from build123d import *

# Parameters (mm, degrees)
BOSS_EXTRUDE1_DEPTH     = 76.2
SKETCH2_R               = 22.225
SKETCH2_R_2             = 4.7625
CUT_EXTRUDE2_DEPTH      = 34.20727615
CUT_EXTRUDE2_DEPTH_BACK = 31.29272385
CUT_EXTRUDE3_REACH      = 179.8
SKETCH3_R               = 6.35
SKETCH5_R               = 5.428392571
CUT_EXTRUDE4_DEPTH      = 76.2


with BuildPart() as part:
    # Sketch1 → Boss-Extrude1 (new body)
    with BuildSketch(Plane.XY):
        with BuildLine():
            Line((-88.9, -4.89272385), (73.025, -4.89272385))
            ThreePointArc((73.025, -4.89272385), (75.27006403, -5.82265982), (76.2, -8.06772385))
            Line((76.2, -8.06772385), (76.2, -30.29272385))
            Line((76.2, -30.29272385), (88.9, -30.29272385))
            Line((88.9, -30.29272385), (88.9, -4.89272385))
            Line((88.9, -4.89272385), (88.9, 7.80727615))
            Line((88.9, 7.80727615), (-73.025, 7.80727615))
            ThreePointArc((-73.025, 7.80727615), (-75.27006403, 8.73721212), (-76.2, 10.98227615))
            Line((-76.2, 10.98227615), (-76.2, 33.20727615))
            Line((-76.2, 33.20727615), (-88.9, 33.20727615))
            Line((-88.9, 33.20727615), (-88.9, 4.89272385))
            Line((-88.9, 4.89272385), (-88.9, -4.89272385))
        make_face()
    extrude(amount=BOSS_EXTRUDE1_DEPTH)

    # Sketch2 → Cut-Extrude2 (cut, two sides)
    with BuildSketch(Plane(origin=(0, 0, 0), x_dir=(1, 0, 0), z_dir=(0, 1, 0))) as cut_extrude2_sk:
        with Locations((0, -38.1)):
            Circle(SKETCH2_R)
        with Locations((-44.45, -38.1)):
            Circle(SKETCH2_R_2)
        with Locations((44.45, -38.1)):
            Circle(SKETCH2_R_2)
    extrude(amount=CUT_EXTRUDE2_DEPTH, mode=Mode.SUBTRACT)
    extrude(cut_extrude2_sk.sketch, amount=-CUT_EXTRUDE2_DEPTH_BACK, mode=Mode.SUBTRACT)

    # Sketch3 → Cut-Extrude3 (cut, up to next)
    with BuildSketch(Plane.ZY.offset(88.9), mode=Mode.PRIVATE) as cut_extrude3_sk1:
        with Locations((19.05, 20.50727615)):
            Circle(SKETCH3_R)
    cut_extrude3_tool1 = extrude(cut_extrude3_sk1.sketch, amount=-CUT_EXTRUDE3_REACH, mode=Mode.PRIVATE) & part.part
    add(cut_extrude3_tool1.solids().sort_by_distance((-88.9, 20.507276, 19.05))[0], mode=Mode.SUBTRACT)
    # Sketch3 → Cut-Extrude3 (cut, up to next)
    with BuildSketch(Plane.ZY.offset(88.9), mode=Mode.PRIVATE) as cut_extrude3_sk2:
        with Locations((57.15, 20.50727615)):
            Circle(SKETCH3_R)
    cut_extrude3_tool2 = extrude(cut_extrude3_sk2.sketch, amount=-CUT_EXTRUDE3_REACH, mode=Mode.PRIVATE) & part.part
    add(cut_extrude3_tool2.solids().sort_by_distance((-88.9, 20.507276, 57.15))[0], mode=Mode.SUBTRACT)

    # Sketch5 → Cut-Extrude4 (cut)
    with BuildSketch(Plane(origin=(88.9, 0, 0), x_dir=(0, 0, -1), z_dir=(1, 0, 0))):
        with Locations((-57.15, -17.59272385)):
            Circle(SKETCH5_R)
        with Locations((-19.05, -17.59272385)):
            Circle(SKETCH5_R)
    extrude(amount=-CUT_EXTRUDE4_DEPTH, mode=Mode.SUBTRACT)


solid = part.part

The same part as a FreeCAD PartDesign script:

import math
import FreeCAD as App
import Part
import Sketcher
from FreeCAD import Vector
Q = App.Units.Quantity

doc = App.newDocument("Part")
params = doc.addObject("Spreadsheet::Sheet", "Params")
for row, (alias, value) in enumerate([
    ("sketch1_width", "0.5 in"),
    ("sketch1_height", "1.5 in"),
    ("sketch1_radius", "0.125 in"),
    ("pad1_length", "3 in"),
    ("sketch2_diameter", "1.75 in"),
    ("sketch2_diameter2", "0.375 in"),
    ("sketch3_diameter", "0.5 in"),
    ("sketch4_diameter", "0.5 in"),
    ("pocket4_length", "3 in"),
], start=1):
    params.set(f"A{row}", alias)
    params.set(f"B{row}", "=" + value)
    params.setAlias(f"B{row}", alias)

body = doc.addObject("PartDesign::Body", "Body")

# Sketch on XY plane
sketch1 = body.newObject("Sketcher::SketchObject", "Sketch")
sketch1.AttachmentSupport = (doc.getObject("XY_Plane"), [""])
sketch1.MapMode = "FlatFace"
sketch1.addGeometry(Part.LineSegment(Vector(-88.9, -4.9, 0), Vector(73, -4.9, 0)), False)
sketch1.addGeometry(Part.ArcOfCircle(Part.Circle(Vector(73, -8.1, 0), Vector(0, 0, 1), 3.2), math.radians(0), math.radians(90)), False)
sketch1.addGeometry(Part.LineSegment(Vector(76.2, -8.1, 0), Vector(76.2, -30.3, 0)), False)
sketch1.addGeometry(Part.LineSegment(Vector(76.2, -30.3, 0), Vector(88.9, -30.3, 0)), False)
sketch1.addGeometry(Part.LineSegment(Vector(88.9, -30.3, 0), Vector(88.9, 7.8, 0)), False)
sketch1.addGeometry(Part.LineSegment(Vector(88.9, 7.8, 0), Vector(-73, 7.8, 0)), False)
sketch1.addGeometry(Part.ArcOfCircle(Part.Circle(Vector(-73, 11, 0), Vector(0, 0, 1), 3.2), math.radians(-180), math.radians(-90)), False)
sketch1.addGeometry(Part.LineSegment(Vector(-76.2, 11, 0), Vector(-76.2, 33.2, 0)), False)
sketch1.addGeometry(Part.LineSegment(Vector(-76.2, 33.2, 0), Vector(-88.9, 33.2, 0)), False)
sketch1.addGeometry(Part.LineSegment(Vector(-88.9, 33.2, 0), Vector(-88.9, -4.9, 0)), False)
sketch1.addConstraint(Sketcher.Constraint("Tangent", 0, 2, 1, 2))
sketch1.addConstraint(Sketcher.Constraint("Tangent", 1, 1, 2, 1))
sketch1.addConstraint(Sketcher.Constraint("Coincident", 2, 2, 3, 1))
sketch1.addConstraint(Sketcher.Constraint("Coincident", 3, 2, 4, 1))
sketch1.addConstraint(Sketcher.Constraint("Coincident", 4, 2, 5, 1))
sketch1.addConstraint(Sketcher.Constraint("Tangent", 5, 2, 6, 2))
sketch1.addConstraint(Sketcher.Constraint("Tangent", 6, 1, 7, 1))
sketch1.addConstraint(Sketcher.Constraint("Coincident", 7, 2, 8, 1))
sketch1.addConstraint(Sketcher.Constraint("Coincident", 8, 2, 9, 1))
sketch1.addConstraint(Sketcher.Constraint("Coincident", 9, 2, 0, 1))
sketch1.addConstraint(Sketcher.Constraint("Horizontal", 0))
sketch1.addConstraint(Sketcher.Constraint("Vertical", 2))
sketch1.addConstraint(Sketcher.Constraint("Horizontal", 3))
sketch1.addConstraint(Sketcher.Constraint("Vertical", 4))
sketch1.addConstraint(Sketcher.Constraint("Horizontal", 5))
sketch1.addConstraint(Sketcher.Constraint("Vertical", 7))
sketch1.addConstraint(Sketcher.Constraint("Horizontal", 8))
sketch1.addConstraint(Sketcher.Constraint("Vertical", 9))
sketch1.addConstraint(Sketcher.Constraint("Equal", 1, 6))
sketch1.addConstraint(Sketcher.Constraint("Equal", 0, 5))
sketch1.addConstraint(Sketcher.Constraint("Equal", 2, 7))
sketch1.addConstraint(Sketcher.Constraint("DistanceX", 3, 1, 3, 2, Q("0.5 in")))
sketch1.addConstraint(Sketcher.Constraint("DistanceY", 4, 1, 4, 2, Q("1.5 in")))
sketch1.addConstraint(Sketcher.Constraint("DistanceX", -1, 1, 1, 1, Q("3 in")))
sketch1.addConstraint(Sketcher.Constraint("DistanceX", 6, 1, -1, 1, Q("3 in")))
sketch1.addConstraint(Sketcher.Constraint("Radius", 1, Q("0.125 in")))
sketch1.addConstraint(Sketcher.Constraint("DistanceY", 2, 2, 0, 2, Q("1 in")))
sketch1.addConstraint(Sketcher.Constraint("DistanceY", 1, 3, -1, 1, 8.067724))
sketch1.setExpression("Constraints[21]", "Params.sketch1_width")
sketch1.setExpression("Constraints[22]", "Params.sketch1_height")
sketch1.setExpression("Constraints[25]", "Params.sketch1_radius")
pad1 = body.newObject("PartDesign::Pad", "Pad")
pad1.Profile = sketch1
pad1.setExpression("Length", "Params.pad1_length")

# Sketch on XZ plane
sketch2 = body.newObject("Sketcher::SketchObject", "Sketch001")
sketch2.AttachmentSupport = (doc.getObject("XZ_Plane"), [""])
sketch2.MapMode = "FlatFace"
sketch2.addGeometry(Part.Circle(Vector(0, 38.1, 0), Vector(0, 0, 1), 22.2), False)
sketch2.addGeometry(Part.Circle(Vector(-44.5, 38.1, 0), Vector(0, 0, 1), 4.8), False)
sketch2.addGeometry(Part.Circle(Vector(44.5, 38.1, 0), Vector(0, 0, 1), 4.8), False)
sketch2.addConstraint(Sketcher.Constraint("Equal", 1, 2))
sketch2.addConstraint(Sketcher.Constraint("Symmetric", 1, 3, 2, 3, -2))
sketch2.addConstraint(Sketcher.Constraint("PointOnObject", 0, 3, -2))
sketch2.addConstraint(Sketcher.Constraint("Horizontal", 0, 3, 1, 3))
sketch2.addConstraint(Sketcher.Constraint("Diameter", 0, Q("1.75 in")))
sketch2.addConstraint(Sketcher.Constraint("Diameter", 1, Q("0.375 in")))
sketch2.addConstraint(Sketcher.Constraint("DistanceY", -1, 1, 0, 3, Q("1.5 in")))
sketch2.addConstraint(Sketcher.Constraint("DistanceX", 1, 3, 2, 3, Q("3.5 in")))
sketch2.setExpression("Constraints[4]", "Params.sketch2_diameter")
sketch2.setExpression("Constraints[5]", "Params.sketch2_diameter2")
pocket1 = body.newObject("PartDesign::Pocket", "Pocket")
pocket1.Profile = sketch2
pocket1.Type = "ThroughAll"
pocket1.Midplane = True

# Sketch on YZ plane
sketch3 = body.newObject("Sketcher::SketchObject", "Sketch002")
sketch3.AttachmentSupport = (doc.getObject("YZ_Plane"), [""])
sketch3.MapMode = "FlatFace"
sketch3.AttachmentOffset = App.Placement(Vector(0, 0, -3.5 * 25.4), App.Rotation())
sketch3.addGeometry(Part.Circle(Vector(21, 19, 0), Vector(0, 0, 1), 6), False)
sketch3.addConstraint(Sketcher.Constraint("Diameter", 0, Q("0.5 in")))
sketch3.addConstraint(Sketcher.Constraint("DistanceY", -1, 1, 0, 3, Q("0.75 in")))
sketch3.addConstraint(Sketcher.Constraint("DistanceX", -1, 1, 0, 3, 20.507276))
sketch3.setExpression("Constraints[0]", "Params.sketch3_diameter")
pocket2 = body.newObject("PartDesign::Pocket", "Pocket001")
pocket2.Profile = sketch3
pocket2.Type = "UpToFirst"
pocket2.Reversed = True

# Sketch on YZ plane
sketch4 = body.newObject("Sketcher::SketchObject", "Sketch003")
sketch4.AttachmentSupport = (doc.getObject("YZ_Plane"), [""])
sketch4.MapMode = "FlatFace"
sketch4.AttachmentOffset = App.Placement(Vector(0, 0, -3.5 * 25.4), App.Rotation())
sketch4.addGeometry(Part.Circle(Vector(21, 57, 0), Vector(0, 0, 1), 6), False)
sketch4.addConstraint(Sketcher.Constraint("Diameter", 0, Q("0.5 in")))
sketch4.addConstraint(Sketcher.Constraint("DistanceY", -1, 1, 0, 3, Q("2.25 in")))
sketch4.addConstraint(Sketcher.Constraint("DistanceX", -1, 1, 0, 3, 20.507276))
sketch4.setExpression("Constraints[0]", "Params.sketch4_diameter")
pocket3 = body.newObject("PartDesign::Pocket", "Pocket002")
pocket3.Profile = sketch4
pocket3.Type = "UpToFirst"
pocket3.Reversed = True

# Sketch on YZ plane
sketch5 = body.newObject("Sketcher::SketchObject", "Sketch004")
sketch5.AttachmentSupport = (doc.getObject("YZ_Plane"), [""])
sketch5.MapMode = "FlatFace"
sketch5.AttachmentOffset = App.Placement(Vector(0, 0, 3.5 * 25.4), App.Rotation())
sketch5.addGeometry(Part.Circle(Vector(-18, 57, 0), Vector(0, 0, 1), 5), False)
sketch5.addGeometry(Part.Circle(Vector(-18, 19, 0), Vector(0, 0, 1), 5), False)
sketch5.addConstraint(Sketcher.Constraint("Equal", 0, 1))
sketch5.addConstraint(Sketcher.Constraint("Vertical", 0, 3, 1, 3))
sketch5.addConstraint(Sketcher.Constraint("DistanceY", 1, 3, 0, 3, Q("1.5 in")))
sketch5.addConstraint(Sketcher.Constraint("DistanceY", -1, 1, 0, 3, Q("2.25 in")))
sketch5.addConstraint(Sketcher.Constraint("Diameter", 0, 10.856785))
sketch5.addConstraint(Sketcher.Constraint("DistanceX", 0, 3, -1, 1, 17.592724))
pocket4 = body.newObject("PartDesign::Pocket", "Pocket003")
pocket4.Profile = sketch5
pocket4.setExpression("Length", "Params.pocket4_length")

doc.recompute()
